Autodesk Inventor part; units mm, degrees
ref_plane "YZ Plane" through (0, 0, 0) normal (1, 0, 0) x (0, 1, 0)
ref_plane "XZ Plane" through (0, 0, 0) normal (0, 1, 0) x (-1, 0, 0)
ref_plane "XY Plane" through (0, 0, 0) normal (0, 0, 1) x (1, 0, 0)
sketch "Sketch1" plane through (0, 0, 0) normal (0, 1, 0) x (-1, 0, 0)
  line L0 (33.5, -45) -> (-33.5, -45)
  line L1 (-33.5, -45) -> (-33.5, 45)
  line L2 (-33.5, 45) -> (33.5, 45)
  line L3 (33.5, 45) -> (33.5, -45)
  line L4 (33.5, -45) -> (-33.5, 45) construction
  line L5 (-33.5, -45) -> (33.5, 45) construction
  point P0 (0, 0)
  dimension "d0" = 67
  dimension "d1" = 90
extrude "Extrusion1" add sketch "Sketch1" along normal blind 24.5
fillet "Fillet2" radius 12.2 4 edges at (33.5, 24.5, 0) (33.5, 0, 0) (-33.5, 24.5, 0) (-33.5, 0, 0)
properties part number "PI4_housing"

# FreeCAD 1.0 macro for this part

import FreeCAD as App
import Part
import Sketcher
from FreeCAD import Vector
Q = App.Units.Quantity


def edges_at(feature, points):
    """Names of the edges that pass closest to the given points."""
    edges = feature.Shape.Edges
    near = lambda p: min(range(len(edges)), key=lambda i: edges[i].distToShape(Part.Vertex(*p))[0])
    return sorted({f"Edge{near(p) + 1}" for p in points})


def add_polygon(sketch, points):
    """Adds a closed chain of lines whose ends are joined by coincident constraints."""
    first, n = sketch.GeometryCount, len(points)
    for a, b in zip(points, points[1:] + points[:1]):
        sketch.addGeometry(Part.LineSegment(App.Vector(*a, 0), App.Vector(*b, 0)), False)
    for i in range(n):
        sketch.addConstraint(Sketcher.Constraint("Coincident", first + i, 2, first + (i + 1) % n, 1))

doc = App.newDocument("Part")
body = doc.addObject("PartDesign::Body", "Body")

# Sketch on XZ plane
sketch1 = body.newObject("Sketcher::SketchObject", "Sketch")
sketch1.AttachmentSupport = (doc.getObject("XZ_Plane"), [""])
sketch1.MapMode = "FlatFace"
add_polygon(sketch1, [(34, -45), (-34, -45), (-34, 45), (34, 45)])  # lines 0-3
sketch1.addConstraint(Sketcher.Constraint("Horizontal", 0))
sketch1.addConstraint(Sketcher.Constraint("Vertical", 1))
sketch1.addConstraint(Sketcher.Constraint("Horizontal", 2))
sketch1.addConstraint(Sketcher.Constraint("Vertical", 3))
sketch1.addConstraint(Sketcher.Constraint("Symmetric", 0, 2, 2, 2, -1, 1))
sketch1.addConstraint(Sketcher.Constraint("DistanceX", 0, 2, 0, 1, Q("67 mm")))
sketch1.addConstraint(Sketcher.Constraint("DistanceY", 1, 1, 1, 2, Q("90 mm")))
pad1 = body.newObject("PartDesign::Pad", "Pad")
pad1.Profile = sketch1
pad1.Length = 24.5
pad1.Reversed = True
doc.recompute()

fillet = body.newObject("PartDesign::Fillet", "Fillet")
fillet.Base = (pad1, edges_at(pad1, [
    (33.5, 24.5, 0),
    (33.5, 0, 0),
    (-33.5, 24.5, 0),
    (-33.5, 0, 0),
]))
fillet.Radius = 12.2

doc.recompute()
